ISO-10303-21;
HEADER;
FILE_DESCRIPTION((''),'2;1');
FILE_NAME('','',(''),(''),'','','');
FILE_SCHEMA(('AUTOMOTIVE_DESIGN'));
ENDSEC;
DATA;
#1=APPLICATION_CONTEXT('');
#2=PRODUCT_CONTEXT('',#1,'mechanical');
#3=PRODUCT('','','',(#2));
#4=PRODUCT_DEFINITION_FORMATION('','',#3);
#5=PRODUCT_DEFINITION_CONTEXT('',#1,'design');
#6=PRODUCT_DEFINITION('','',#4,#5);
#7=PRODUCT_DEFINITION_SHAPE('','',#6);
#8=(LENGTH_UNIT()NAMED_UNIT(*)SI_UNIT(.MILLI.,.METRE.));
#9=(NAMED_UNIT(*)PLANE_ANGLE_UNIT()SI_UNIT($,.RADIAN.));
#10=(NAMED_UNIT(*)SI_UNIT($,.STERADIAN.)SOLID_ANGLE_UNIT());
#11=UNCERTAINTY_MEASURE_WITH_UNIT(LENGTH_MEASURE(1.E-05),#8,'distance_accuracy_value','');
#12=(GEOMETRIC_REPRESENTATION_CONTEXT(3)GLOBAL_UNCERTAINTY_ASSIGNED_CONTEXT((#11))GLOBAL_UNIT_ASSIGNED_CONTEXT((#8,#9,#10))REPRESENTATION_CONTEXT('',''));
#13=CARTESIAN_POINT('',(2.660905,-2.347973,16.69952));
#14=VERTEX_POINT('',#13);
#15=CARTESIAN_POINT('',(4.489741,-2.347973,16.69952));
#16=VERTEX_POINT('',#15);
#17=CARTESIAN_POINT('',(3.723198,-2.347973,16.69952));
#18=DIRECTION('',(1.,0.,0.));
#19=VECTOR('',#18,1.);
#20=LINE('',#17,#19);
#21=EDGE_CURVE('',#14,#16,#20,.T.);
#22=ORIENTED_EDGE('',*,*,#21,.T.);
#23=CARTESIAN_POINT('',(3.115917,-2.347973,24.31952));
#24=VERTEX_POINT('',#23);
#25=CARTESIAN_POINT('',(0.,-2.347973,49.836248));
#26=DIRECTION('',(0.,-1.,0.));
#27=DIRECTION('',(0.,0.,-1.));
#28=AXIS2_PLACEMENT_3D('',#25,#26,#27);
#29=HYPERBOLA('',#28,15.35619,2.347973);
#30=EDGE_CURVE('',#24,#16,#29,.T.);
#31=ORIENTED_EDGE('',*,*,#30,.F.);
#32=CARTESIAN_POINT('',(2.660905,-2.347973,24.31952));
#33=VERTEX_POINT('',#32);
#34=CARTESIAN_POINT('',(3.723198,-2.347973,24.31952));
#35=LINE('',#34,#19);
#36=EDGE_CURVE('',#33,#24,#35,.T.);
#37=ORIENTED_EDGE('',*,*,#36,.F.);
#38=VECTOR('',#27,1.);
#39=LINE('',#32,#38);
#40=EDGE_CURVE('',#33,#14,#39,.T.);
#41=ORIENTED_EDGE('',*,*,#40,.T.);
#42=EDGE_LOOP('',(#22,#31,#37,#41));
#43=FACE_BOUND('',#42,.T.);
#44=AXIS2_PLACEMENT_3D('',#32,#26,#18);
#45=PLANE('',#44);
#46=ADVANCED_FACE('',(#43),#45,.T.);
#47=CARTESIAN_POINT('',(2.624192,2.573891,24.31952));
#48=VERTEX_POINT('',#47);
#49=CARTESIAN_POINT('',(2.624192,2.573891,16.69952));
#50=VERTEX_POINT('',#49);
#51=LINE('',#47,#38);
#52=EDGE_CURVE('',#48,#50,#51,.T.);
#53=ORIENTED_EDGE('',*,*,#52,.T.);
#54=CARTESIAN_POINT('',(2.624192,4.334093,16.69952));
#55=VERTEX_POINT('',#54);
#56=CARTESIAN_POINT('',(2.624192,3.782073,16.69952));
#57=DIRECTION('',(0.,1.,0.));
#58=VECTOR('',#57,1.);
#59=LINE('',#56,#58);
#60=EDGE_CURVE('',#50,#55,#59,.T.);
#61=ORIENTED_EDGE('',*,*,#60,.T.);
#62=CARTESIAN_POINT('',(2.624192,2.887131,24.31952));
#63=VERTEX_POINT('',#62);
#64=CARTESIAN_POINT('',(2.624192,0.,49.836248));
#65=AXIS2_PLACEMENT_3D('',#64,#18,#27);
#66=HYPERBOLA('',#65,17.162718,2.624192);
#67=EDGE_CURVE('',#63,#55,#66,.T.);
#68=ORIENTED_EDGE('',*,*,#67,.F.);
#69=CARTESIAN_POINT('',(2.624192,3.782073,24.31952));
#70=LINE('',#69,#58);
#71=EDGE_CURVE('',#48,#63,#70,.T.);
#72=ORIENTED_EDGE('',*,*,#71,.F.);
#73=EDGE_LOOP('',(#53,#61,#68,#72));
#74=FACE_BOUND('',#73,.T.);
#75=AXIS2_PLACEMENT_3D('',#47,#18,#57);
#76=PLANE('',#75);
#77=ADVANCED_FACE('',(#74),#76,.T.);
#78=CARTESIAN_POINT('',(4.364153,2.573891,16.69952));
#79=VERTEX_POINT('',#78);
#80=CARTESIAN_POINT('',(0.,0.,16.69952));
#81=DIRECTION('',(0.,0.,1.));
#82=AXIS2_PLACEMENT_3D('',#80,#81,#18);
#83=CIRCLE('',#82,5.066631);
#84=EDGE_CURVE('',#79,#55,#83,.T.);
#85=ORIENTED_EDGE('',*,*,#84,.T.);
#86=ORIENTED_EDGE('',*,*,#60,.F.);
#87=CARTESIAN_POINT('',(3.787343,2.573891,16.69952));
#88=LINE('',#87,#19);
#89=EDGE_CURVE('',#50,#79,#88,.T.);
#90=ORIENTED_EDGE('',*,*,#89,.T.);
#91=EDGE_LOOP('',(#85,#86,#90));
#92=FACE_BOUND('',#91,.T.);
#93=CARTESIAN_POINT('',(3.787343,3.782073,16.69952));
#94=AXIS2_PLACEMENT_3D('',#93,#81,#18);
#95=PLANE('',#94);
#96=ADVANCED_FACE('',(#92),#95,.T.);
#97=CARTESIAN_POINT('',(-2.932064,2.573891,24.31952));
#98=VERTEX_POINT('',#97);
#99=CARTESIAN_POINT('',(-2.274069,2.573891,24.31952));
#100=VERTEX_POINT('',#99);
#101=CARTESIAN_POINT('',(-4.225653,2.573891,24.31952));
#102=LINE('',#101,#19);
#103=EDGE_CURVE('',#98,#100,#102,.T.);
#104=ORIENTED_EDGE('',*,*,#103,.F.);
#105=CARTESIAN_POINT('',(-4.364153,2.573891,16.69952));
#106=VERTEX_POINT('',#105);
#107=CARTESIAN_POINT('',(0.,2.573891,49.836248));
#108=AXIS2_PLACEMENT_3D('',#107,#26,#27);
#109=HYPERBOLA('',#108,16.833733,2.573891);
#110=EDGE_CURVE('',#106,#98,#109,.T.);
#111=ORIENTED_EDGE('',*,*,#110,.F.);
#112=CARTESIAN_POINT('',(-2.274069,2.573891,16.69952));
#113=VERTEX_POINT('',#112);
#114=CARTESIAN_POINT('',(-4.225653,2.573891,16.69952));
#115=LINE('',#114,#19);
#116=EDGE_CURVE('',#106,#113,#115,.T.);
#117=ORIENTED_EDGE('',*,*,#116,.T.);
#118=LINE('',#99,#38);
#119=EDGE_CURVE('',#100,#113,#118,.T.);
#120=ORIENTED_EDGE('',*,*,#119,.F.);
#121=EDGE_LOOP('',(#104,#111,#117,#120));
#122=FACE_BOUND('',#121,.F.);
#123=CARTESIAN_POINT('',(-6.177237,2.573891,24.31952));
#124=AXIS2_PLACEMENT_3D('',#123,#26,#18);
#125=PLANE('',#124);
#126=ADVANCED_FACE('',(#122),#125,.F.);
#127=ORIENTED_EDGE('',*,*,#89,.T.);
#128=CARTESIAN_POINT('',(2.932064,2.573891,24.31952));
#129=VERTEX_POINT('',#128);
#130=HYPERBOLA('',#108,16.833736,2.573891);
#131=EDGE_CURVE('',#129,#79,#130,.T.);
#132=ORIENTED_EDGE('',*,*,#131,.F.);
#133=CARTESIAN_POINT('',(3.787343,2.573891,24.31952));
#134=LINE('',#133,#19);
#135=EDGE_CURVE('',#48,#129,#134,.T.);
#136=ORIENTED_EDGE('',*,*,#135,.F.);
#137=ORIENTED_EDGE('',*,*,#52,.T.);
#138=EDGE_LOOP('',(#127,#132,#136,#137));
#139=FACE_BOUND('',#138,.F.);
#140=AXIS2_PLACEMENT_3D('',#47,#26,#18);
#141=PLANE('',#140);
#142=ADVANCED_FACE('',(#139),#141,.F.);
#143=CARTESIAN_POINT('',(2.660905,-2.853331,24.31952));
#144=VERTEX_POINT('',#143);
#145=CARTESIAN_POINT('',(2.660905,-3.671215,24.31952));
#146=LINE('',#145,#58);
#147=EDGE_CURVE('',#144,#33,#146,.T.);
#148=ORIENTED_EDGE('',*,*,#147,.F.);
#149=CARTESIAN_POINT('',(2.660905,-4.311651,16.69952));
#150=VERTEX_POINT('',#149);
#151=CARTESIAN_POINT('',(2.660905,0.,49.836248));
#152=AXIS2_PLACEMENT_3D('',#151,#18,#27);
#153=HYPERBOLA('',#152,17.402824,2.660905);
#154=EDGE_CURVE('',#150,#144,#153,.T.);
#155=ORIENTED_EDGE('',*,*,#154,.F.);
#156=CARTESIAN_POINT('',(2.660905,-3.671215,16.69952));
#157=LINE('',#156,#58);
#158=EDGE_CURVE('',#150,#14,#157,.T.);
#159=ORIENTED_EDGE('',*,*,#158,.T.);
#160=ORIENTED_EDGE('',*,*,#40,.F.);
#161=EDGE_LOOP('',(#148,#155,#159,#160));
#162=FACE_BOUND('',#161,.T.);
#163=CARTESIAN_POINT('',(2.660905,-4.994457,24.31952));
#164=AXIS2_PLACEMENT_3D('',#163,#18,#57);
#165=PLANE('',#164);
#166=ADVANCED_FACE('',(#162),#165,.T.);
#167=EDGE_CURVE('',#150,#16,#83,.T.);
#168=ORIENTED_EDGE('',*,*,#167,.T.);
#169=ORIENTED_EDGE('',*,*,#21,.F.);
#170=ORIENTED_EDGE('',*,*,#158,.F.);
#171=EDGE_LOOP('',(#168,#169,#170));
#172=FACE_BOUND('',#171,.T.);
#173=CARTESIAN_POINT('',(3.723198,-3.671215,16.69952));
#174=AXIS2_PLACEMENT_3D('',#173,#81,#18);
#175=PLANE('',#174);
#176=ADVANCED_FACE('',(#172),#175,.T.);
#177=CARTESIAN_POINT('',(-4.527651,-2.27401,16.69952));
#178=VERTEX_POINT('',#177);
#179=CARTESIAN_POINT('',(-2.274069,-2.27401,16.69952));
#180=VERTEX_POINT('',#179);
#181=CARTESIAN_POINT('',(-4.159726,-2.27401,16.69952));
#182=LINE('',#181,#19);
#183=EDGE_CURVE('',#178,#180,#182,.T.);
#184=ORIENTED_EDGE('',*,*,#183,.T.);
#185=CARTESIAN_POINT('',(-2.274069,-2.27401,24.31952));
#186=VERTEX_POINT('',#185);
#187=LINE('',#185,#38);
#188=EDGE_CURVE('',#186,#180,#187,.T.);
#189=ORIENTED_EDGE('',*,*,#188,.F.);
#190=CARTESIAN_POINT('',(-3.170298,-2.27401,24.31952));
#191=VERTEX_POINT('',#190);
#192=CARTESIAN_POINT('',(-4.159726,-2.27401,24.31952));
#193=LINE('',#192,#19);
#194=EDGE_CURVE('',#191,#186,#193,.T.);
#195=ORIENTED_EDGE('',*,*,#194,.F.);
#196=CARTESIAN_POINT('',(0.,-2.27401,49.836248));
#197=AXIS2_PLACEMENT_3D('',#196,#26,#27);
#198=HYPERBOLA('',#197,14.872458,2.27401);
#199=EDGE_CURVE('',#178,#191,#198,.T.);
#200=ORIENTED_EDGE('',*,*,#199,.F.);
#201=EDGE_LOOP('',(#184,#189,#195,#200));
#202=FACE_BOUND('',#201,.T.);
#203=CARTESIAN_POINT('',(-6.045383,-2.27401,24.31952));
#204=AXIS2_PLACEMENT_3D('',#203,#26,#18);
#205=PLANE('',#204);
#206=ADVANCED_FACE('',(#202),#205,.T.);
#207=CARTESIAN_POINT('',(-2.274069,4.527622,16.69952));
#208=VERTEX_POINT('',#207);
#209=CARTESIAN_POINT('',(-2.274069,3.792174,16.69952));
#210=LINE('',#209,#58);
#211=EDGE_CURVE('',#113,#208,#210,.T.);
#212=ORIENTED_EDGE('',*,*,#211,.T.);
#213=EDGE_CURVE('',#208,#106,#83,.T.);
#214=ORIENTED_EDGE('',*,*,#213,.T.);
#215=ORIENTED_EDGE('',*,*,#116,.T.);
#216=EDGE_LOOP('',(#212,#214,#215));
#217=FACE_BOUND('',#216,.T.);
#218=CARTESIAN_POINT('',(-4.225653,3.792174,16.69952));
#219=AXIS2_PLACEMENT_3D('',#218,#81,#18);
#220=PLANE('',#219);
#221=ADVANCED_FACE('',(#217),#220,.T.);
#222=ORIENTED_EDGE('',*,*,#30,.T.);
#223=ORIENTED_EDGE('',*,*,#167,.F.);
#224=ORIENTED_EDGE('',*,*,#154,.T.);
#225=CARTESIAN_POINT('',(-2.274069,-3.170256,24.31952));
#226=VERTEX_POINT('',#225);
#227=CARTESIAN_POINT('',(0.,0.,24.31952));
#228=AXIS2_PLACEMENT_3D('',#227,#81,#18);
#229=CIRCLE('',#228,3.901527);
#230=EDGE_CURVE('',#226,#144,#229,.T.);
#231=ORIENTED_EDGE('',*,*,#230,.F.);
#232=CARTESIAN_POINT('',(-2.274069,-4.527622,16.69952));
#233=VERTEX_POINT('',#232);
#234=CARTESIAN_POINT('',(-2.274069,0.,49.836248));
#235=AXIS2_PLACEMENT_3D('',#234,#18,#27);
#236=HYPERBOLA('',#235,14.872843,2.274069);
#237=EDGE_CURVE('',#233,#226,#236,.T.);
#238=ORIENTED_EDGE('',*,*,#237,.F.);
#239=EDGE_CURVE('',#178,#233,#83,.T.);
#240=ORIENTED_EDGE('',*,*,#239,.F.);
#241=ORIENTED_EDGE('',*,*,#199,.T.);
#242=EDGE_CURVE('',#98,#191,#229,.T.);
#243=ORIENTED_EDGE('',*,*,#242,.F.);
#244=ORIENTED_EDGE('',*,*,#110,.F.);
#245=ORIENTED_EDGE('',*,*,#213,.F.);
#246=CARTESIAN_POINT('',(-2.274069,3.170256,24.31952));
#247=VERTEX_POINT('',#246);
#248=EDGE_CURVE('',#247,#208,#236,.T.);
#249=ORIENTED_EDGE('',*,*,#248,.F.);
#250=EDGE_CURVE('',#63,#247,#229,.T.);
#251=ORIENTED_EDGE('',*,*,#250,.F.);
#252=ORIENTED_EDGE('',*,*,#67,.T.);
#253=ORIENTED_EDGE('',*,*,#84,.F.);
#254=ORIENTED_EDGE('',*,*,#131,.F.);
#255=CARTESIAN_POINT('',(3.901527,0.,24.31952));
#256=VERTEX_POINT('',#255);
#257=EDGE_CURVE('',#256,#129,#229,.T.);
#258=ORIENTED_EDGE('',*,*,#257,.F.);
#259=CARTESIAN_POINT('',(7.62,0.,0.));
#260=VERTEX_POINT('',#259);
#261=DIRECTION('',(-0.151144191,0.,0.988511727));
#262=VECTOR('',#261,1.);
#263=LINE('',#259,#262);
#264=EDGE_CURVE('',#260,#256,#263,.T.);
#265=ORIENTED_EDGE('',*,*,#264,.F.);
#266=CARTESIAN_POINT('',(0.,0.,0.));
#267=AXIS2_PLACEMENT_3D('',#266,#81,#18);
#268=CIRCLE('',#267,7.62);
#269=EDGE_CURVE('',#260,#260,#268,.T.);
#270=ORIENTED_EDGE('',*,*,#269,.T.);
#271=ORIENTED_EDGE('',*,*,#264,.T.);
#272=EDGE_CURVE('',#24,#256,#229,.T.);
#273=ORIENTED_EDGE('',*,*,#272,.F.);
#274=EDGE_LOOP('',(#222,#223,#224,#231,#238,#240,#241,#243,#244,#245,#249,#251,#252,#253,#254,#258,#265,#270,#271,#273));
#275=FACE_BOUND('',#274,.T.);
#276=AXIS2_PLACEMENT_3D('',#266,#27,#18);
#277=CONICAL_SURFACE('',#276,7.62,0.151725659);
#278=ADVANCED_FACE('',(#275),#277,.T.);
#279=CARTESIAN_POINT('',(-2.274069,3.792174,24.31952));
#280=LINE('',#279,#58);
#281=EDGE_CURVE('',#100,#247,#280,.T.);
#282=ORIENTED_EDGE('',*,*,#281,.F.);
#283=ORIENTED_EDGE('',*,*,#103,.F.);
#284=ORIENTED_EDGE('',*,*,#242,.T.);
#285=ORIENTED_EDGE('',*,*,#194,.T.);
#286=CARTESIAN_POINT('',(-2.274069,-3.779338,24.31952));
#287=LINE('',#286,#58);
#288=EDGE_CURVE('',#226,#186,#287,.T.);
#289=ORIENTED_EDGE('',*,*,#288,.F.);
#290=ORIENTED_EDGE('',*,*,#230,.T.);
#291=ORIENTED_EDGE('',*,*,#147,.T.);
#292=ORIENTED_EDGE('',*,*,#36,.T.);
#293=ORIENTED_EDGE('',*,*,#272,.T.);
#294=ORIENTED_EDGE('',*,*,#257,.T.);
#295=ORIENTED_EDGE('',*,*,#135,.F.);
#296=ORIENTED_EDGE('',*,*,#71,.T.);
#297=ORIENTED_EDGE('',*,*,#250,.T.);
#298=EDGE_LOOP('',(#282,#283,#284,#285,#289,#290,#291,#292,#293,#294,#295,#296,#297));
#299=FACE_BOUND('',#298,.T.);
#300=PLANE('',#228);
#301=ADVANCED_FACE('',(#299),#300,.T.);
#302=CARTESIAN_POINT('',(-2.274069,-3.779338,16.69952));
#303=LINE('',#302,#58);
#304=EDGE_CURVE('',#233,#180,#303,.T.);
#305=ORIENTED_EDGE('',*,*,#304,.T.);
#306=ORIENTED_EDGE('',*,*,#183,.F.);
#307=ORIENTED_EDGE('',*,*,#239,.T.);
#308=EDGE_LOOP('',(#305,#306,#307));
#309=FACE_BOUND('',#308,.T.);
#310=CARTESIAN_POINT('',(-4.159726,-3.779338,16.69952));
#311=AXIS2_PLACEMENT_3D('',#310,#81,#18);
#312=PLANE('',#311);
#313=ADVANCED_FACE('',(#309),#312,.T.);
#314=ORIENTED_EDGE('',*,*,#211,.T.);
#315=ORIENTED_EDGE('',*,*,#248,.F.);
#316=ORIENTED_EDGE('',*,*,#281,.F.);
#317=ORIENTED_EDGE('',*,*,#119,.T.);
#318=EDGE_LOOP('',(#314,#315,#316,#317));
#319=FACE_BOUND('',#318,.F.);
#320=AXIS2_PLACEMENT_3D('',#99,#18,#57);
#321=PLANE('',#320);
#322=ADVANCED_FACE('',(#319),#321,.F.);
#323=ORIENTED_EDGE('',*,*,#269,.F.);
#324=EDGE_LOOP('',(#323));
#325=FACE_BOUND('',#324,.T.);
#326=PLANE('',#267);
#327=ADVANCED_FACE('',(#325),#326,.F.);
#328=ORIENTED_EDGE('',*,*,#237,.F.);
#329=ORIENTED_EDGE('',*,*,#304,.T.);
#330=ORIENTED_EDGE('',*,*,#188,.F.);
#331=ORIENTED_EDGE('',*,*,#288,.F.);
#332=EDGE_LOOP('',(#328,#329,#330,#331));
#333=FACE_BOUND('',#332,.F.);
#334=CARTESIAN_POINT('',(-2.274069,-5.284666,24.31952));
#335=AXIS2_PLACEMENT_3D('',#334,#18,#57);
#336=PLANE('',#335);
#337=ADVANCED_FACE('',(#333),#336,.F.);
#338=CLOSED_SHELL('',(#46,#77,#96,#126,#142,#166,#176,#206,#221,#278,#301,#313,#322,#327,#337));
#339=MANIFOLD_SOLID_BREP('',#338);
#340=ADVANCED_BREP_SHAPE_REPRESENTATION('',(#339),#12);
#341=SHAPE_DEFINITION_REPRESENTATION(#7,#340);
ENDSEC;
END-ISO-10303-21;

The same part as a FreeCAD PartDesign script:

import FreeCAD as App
import Part
import Sketcher
Q = App.Units.Quantity

doc = App.newDocument("Part")
body = doc.addObject("PartDesign::Body", "Body")

sketch1 = doc.addObject("Sketcher::SketchObject", "Sketch")
body.addObject(sketch1)
sketch1.AttachmentSupport = (doc.XZ_Plane, [""])
sketch1.MapMode = "FlatFace"
sketch1.addGeometry(Part.LineSegment(App.Vector(0, 24.31952, 0), App.Vector(0, 0, 0)), False)
sketch1.addGeometry(Part.LineSegment(App.Vector(0, 0, 0), App.Vector(7.62, 0, 0)), False)
sketch1.addGeometry(Part.LineSegment(App.Vector(7.62, 0, 0), App.Vector(3.901527, 24.31952, 0)), False)
sketch1.addGeometry(Part.LineSegment(App.Vector(3.901527, 24.31952, 0), App.Vector(0, 24.31952, 0)), False)
sketch1.addConstraint(Sketcher.Constraint("Coincident", 0, 2, 1, 1))
sketch1.addConstraint(Sketcher.Constraint("Coincident", 1, 2, 2, 1))
sketch1.addConstraint(Sketcher.Constraint("Coincident", 2, 2, 3, 1))
sketch1.addConstraint(Sketcher.Constraint("Coincident", 3, 2, 0, 1))
sketch1.addConstraint(Sketcher.Constraint("Vertical", 0))
sketch1.addConstraint(Sketcher.Constraint("Horizontal", 1))
sketch1.addConstraint(Sketcher.Constraint("Horizontal", 3))
sketch1.addConstraint(Sketcher.Constraint("Coincident", 0, 2, -1, 1))
sketch1.addConstraint(Sketcher.Constraint("DistanceX", 1, 1, 1, 2, Q("0.3 in")))
sketch1.addConstraint(Sketcher.Constraint("DistanceY", 0, 2, 0, 1, Q("24.31952 mm")))
sketch1.addConstraint(Sketcher.Constraint("DistanceX", 3, 2, 3, 1, Q("3.901527 mm")))
revolution = doc.addObject("PartDesign::Revolution", "Revolution")
body.addObject(revolution)
revolution.Profile = sketch1
revolution.ReferenceAxis = (sketch1, ["V_Axis"])
revolution.Angle = 360

sketch2 = doc.addObject("Sketcher::SketchObject", "Sketch001")
body.addObject(sketch2)
sketch2.AttachmentSupport = (doc.XY_Plane, [""])
sketch2.MapMode = "FlatFace"
sketch2.AttachmentOffset = App.Placement(App.Vector(0, 0, 24.31952), App.Rotation())
sketch2.addGeometry(Part.LineSegment(App.Vector(2.660905, -2.347973, 0), App.Vector(2.660905, -4.994457, 0)), False)
sketch2.addGeometry(Part.LineSegment(App.Vector(2.660905, -4.994457, 0), App.Vector(4.785491, -4.994457, 0)), False)
sketch2.addGeometry(Part.LineSegment(App.Vector(4.785491, -4.994457, 0), App.Vector(4.785491, -2.347973, 0)), False)
sketch2.addGeometry(Part.LineSegment(App.Vector(4.785491, -2.347973, 0), App.Vector(2.660905, -2.347973, 0)), False)
sketch2.addGeometry(Part.LineSegment(App.Vector(2.624192, 4.990255, 0), App.Vector(2.624192, 2.573891, 0)), False)
sketch2.addGeometry(Part.LineSegment(App.Vector(2.624192, 2.573891, 0), App.Vector(4.950494, 2.573891, 0)), False)
sketch2.addGeometry(Part.LineSegment(App.Vector(4.950494, 2.573891, 0), App.Vector(4.950494, 4.990255, 0)), False)
sketch2.addGeometry(Part.LineSegment(App.Vector(4.950494, 4.990255, 0), App.Vector(2.624192, 4.990255, 0)), False)
sketch2.addGeometry(Part.LineSegment(App.Vector(-6.045383, -2.27401, 0), App.Vector(-6.045383, -5.284666, 0)), False)
sketch2.addGeometry(Part.LineSegment(App.Vector(-6.045383, -5.284666, 0), App.Vector(-2.274069, -5.284666, 0)), False)
sketch2.addGeometry(Part.LineSegment(App.Vector(-2.274069, -5.284666, 0), App.Vector(-2.274069, -2.27401, 0)), False)
sketch2.addGeometry(Part.LineSegment(App.Vector(-2.274069, -2.27401, 0), App.Vector(-6.045383, -2.27401, 0)), False)
sketch2.addGeometry(Part.LineSegment(App.Vector(-6.177237, 5.010458, 0), App.Vector(-6.177237, 2.573891, 0)), False)
sketch2.addGeometry(Part.LineSegment(App.Vector(-6.177237, 2.573891, 0), App.Vector(-2.274069, 2.573891, 0)), False)
sketch2.addGeometry(Part.LineSegment(App.Vector(-2.274069, 2.573891, 0), App.Vector(-2.274069, 5.010458, 0)), False)
sketch2.addGeometry(Part.LineSegment(App.Vector(-2.274069, 5.010458, 0), App.Vector(-6.177237, 5.010458, 0)), False)
sketch2.addConstraint(Sketcher.Constraint("Coincident", 0, 2, 1, 1))
sketch2.addConstraint(Sketcher.Constraint("Coincident", 1, 2, 2, 1))
sketch2.addConstraint(Sketcher.Constraint("Coincident", 2, 2, 3, 1))
sketch2.addConstraint(Sketcher.Constraint("Coincident", 3, 2, 0, 1))
sketch2.addConstraint(Sketcher.Constraint("Coincident", 4, 2, 5, 1))
sketch2.addConstraint(Sketcher.Constraint("Coincident", 5, 2, 6, 1))
sketch2.addConstraint(Sketcher.Constraint("Coincident", 6, 2, 7, 1))
sketch2.addConstraint(Sketcher.Constraint("Coincident", 7, 2, 4, 1))
sketch2.addConstraint(Sketcher.Constraint("Coincident", 8, 2, 9, 1))
sketch2.addConstraint(Sketcher.Constraint("Coincident", 9, 2, 10, 1))
sketch2.addConstraint(Sketcher.Constraint("Coincident", 10, 2, 11, 1))
sketch2.addConstraint(Sketcher.Constraint("Coincident", 11, 2, 8, 1))
sketch2.addConstraint(Sketcher.Constraint("Coincident", 12, 2, 13, 1))
sketch2.addConstraint(Sketcher.Constraint("Coincident", 13, 2, 14, 1))
sketch2.addConstraint(Sketcher.Constraint("Coincident", 14, 2, 15, 1))
sketch2.addConstraint(Sketcher.Constraint("Coincident", 15, 2, 12, 1))
sketch2.addConstraint(Sketcher.Constraint("Vertical", 0))
sketch2.addConstraint(Sketcher.Constraint("Horizontal", 1))
sketch2.addConstraint(Sketcher.Constraint("Vertical", 2))
sketch2.addConstraint(Sketcher.Constraint("Horizontal", 3))
sketch2.addConstraint(Sketcher.Constraint("Vertical", 4))
sketch2.addConstraint(Sketcher.Constraint("Horizontal", 5))
sketch2.addConstraint(Sketcher.Constraint("Vertical", 6))
sketch2.addConstraint(Sketcher.Constraint("Horizontal", 7))
sketch2.addConstraint(Sketcher.Constraint("Vertical", 8))
sketch2.addConstraint(Sketcher.Constraint("Horizontal", 9))
sketch2.addConstraint(Sketcher.Constraint("Vertical", 10))
sketch2.addConstraint(Sketcher.Constraint("Horizontal", 11))
sketch2.addConstraint(Sketcher.Constraint("Vertical", 12))
sketch2.addConstraint(Sketcher.Constraint("Horizontal", 13))
sketch2.addConstraint(Sketcher.Constraint("Vertical", 14))
sketch2.addConstraint(Sketcher.Constraint("Horizontal", 15))
sketch2.addConstraint(Sketcher.Constraint("Horizontal", 5, 2, 12, 2))
sketch2.addConstraint(Sketcher.Constraint("Vertical", 10, 2, 13, 2))
sketch2.addConstraint(Sketcher.Constraint("DistanceX", 5, 1, 5, 2, Q("2.326301 mm")))
sketch2.addConstraint(Sketcher.Constraint("DistanceX", 13, 1, 13, 2, Q("3.903168 mm")))
sketch2.addConstraint(Sketcher.Constraint("DistanceX", 4, 2, 2, 2, Q("2.161299 mm")))
sketch2.addConstraint(Sketcher.Constraint("DistanceY", 10, 2, 4, 2, Q("4.847901 mm")))
sketch2.addConstraint(Sketcher.Constraint("DistanceX", 1, 1, 1, 2, Q("2.124586 mm")))
sketch2.addConstraint(Sketcher.Constraint("DistanceX", 9, 1, 9, 2, Q("3.771314 mm")))
sketch2.addConstraint(Sketcher.Constraint("DistanceY", 0, 2, 0, 1, Q("2.646484 mm")))
sketch2.addConstraint(Sketcher.Constraint("DistanceY", 4, 2, 4, 1, Q("2.416364 mm")))
sketch2.addConstraint(Sketcher.Constraint("DistanceY", 8, 2, 8, 1, Q("3.010656 mm")))
sketch2.addConstraint(Sketcher.Constraint("DistanceY", 12, 2, 12, 1, Q("2.436567 mm")))
sketch2.addConstraint(Sketcher.Constraint("DistanceX", -1, 1, 1, 2, Q("4.785491 mm")))
sketch2.addConstraint(Sketcher.Constraint("DistanceY", -1, 1, 4, 2, Q("2.573891 mm")))
sketch2.addConstraint(Sketcher.Constraint("DistanceX", 9, 2, -1, 1, Q("2.274069 mm")))
sketch2.addConstraint(Sketcher.Constraint("DistanceY", 0, 2, 4, 2, Q("7.568348 mm")))
pocket1 = doc.addObject("PartDesign::Pocket", "Pocket")
body.addObject(pocket1)
pocket1.Profile = sketch2
pocket1.Length = Q("0.3 in")

doc.recompute()
